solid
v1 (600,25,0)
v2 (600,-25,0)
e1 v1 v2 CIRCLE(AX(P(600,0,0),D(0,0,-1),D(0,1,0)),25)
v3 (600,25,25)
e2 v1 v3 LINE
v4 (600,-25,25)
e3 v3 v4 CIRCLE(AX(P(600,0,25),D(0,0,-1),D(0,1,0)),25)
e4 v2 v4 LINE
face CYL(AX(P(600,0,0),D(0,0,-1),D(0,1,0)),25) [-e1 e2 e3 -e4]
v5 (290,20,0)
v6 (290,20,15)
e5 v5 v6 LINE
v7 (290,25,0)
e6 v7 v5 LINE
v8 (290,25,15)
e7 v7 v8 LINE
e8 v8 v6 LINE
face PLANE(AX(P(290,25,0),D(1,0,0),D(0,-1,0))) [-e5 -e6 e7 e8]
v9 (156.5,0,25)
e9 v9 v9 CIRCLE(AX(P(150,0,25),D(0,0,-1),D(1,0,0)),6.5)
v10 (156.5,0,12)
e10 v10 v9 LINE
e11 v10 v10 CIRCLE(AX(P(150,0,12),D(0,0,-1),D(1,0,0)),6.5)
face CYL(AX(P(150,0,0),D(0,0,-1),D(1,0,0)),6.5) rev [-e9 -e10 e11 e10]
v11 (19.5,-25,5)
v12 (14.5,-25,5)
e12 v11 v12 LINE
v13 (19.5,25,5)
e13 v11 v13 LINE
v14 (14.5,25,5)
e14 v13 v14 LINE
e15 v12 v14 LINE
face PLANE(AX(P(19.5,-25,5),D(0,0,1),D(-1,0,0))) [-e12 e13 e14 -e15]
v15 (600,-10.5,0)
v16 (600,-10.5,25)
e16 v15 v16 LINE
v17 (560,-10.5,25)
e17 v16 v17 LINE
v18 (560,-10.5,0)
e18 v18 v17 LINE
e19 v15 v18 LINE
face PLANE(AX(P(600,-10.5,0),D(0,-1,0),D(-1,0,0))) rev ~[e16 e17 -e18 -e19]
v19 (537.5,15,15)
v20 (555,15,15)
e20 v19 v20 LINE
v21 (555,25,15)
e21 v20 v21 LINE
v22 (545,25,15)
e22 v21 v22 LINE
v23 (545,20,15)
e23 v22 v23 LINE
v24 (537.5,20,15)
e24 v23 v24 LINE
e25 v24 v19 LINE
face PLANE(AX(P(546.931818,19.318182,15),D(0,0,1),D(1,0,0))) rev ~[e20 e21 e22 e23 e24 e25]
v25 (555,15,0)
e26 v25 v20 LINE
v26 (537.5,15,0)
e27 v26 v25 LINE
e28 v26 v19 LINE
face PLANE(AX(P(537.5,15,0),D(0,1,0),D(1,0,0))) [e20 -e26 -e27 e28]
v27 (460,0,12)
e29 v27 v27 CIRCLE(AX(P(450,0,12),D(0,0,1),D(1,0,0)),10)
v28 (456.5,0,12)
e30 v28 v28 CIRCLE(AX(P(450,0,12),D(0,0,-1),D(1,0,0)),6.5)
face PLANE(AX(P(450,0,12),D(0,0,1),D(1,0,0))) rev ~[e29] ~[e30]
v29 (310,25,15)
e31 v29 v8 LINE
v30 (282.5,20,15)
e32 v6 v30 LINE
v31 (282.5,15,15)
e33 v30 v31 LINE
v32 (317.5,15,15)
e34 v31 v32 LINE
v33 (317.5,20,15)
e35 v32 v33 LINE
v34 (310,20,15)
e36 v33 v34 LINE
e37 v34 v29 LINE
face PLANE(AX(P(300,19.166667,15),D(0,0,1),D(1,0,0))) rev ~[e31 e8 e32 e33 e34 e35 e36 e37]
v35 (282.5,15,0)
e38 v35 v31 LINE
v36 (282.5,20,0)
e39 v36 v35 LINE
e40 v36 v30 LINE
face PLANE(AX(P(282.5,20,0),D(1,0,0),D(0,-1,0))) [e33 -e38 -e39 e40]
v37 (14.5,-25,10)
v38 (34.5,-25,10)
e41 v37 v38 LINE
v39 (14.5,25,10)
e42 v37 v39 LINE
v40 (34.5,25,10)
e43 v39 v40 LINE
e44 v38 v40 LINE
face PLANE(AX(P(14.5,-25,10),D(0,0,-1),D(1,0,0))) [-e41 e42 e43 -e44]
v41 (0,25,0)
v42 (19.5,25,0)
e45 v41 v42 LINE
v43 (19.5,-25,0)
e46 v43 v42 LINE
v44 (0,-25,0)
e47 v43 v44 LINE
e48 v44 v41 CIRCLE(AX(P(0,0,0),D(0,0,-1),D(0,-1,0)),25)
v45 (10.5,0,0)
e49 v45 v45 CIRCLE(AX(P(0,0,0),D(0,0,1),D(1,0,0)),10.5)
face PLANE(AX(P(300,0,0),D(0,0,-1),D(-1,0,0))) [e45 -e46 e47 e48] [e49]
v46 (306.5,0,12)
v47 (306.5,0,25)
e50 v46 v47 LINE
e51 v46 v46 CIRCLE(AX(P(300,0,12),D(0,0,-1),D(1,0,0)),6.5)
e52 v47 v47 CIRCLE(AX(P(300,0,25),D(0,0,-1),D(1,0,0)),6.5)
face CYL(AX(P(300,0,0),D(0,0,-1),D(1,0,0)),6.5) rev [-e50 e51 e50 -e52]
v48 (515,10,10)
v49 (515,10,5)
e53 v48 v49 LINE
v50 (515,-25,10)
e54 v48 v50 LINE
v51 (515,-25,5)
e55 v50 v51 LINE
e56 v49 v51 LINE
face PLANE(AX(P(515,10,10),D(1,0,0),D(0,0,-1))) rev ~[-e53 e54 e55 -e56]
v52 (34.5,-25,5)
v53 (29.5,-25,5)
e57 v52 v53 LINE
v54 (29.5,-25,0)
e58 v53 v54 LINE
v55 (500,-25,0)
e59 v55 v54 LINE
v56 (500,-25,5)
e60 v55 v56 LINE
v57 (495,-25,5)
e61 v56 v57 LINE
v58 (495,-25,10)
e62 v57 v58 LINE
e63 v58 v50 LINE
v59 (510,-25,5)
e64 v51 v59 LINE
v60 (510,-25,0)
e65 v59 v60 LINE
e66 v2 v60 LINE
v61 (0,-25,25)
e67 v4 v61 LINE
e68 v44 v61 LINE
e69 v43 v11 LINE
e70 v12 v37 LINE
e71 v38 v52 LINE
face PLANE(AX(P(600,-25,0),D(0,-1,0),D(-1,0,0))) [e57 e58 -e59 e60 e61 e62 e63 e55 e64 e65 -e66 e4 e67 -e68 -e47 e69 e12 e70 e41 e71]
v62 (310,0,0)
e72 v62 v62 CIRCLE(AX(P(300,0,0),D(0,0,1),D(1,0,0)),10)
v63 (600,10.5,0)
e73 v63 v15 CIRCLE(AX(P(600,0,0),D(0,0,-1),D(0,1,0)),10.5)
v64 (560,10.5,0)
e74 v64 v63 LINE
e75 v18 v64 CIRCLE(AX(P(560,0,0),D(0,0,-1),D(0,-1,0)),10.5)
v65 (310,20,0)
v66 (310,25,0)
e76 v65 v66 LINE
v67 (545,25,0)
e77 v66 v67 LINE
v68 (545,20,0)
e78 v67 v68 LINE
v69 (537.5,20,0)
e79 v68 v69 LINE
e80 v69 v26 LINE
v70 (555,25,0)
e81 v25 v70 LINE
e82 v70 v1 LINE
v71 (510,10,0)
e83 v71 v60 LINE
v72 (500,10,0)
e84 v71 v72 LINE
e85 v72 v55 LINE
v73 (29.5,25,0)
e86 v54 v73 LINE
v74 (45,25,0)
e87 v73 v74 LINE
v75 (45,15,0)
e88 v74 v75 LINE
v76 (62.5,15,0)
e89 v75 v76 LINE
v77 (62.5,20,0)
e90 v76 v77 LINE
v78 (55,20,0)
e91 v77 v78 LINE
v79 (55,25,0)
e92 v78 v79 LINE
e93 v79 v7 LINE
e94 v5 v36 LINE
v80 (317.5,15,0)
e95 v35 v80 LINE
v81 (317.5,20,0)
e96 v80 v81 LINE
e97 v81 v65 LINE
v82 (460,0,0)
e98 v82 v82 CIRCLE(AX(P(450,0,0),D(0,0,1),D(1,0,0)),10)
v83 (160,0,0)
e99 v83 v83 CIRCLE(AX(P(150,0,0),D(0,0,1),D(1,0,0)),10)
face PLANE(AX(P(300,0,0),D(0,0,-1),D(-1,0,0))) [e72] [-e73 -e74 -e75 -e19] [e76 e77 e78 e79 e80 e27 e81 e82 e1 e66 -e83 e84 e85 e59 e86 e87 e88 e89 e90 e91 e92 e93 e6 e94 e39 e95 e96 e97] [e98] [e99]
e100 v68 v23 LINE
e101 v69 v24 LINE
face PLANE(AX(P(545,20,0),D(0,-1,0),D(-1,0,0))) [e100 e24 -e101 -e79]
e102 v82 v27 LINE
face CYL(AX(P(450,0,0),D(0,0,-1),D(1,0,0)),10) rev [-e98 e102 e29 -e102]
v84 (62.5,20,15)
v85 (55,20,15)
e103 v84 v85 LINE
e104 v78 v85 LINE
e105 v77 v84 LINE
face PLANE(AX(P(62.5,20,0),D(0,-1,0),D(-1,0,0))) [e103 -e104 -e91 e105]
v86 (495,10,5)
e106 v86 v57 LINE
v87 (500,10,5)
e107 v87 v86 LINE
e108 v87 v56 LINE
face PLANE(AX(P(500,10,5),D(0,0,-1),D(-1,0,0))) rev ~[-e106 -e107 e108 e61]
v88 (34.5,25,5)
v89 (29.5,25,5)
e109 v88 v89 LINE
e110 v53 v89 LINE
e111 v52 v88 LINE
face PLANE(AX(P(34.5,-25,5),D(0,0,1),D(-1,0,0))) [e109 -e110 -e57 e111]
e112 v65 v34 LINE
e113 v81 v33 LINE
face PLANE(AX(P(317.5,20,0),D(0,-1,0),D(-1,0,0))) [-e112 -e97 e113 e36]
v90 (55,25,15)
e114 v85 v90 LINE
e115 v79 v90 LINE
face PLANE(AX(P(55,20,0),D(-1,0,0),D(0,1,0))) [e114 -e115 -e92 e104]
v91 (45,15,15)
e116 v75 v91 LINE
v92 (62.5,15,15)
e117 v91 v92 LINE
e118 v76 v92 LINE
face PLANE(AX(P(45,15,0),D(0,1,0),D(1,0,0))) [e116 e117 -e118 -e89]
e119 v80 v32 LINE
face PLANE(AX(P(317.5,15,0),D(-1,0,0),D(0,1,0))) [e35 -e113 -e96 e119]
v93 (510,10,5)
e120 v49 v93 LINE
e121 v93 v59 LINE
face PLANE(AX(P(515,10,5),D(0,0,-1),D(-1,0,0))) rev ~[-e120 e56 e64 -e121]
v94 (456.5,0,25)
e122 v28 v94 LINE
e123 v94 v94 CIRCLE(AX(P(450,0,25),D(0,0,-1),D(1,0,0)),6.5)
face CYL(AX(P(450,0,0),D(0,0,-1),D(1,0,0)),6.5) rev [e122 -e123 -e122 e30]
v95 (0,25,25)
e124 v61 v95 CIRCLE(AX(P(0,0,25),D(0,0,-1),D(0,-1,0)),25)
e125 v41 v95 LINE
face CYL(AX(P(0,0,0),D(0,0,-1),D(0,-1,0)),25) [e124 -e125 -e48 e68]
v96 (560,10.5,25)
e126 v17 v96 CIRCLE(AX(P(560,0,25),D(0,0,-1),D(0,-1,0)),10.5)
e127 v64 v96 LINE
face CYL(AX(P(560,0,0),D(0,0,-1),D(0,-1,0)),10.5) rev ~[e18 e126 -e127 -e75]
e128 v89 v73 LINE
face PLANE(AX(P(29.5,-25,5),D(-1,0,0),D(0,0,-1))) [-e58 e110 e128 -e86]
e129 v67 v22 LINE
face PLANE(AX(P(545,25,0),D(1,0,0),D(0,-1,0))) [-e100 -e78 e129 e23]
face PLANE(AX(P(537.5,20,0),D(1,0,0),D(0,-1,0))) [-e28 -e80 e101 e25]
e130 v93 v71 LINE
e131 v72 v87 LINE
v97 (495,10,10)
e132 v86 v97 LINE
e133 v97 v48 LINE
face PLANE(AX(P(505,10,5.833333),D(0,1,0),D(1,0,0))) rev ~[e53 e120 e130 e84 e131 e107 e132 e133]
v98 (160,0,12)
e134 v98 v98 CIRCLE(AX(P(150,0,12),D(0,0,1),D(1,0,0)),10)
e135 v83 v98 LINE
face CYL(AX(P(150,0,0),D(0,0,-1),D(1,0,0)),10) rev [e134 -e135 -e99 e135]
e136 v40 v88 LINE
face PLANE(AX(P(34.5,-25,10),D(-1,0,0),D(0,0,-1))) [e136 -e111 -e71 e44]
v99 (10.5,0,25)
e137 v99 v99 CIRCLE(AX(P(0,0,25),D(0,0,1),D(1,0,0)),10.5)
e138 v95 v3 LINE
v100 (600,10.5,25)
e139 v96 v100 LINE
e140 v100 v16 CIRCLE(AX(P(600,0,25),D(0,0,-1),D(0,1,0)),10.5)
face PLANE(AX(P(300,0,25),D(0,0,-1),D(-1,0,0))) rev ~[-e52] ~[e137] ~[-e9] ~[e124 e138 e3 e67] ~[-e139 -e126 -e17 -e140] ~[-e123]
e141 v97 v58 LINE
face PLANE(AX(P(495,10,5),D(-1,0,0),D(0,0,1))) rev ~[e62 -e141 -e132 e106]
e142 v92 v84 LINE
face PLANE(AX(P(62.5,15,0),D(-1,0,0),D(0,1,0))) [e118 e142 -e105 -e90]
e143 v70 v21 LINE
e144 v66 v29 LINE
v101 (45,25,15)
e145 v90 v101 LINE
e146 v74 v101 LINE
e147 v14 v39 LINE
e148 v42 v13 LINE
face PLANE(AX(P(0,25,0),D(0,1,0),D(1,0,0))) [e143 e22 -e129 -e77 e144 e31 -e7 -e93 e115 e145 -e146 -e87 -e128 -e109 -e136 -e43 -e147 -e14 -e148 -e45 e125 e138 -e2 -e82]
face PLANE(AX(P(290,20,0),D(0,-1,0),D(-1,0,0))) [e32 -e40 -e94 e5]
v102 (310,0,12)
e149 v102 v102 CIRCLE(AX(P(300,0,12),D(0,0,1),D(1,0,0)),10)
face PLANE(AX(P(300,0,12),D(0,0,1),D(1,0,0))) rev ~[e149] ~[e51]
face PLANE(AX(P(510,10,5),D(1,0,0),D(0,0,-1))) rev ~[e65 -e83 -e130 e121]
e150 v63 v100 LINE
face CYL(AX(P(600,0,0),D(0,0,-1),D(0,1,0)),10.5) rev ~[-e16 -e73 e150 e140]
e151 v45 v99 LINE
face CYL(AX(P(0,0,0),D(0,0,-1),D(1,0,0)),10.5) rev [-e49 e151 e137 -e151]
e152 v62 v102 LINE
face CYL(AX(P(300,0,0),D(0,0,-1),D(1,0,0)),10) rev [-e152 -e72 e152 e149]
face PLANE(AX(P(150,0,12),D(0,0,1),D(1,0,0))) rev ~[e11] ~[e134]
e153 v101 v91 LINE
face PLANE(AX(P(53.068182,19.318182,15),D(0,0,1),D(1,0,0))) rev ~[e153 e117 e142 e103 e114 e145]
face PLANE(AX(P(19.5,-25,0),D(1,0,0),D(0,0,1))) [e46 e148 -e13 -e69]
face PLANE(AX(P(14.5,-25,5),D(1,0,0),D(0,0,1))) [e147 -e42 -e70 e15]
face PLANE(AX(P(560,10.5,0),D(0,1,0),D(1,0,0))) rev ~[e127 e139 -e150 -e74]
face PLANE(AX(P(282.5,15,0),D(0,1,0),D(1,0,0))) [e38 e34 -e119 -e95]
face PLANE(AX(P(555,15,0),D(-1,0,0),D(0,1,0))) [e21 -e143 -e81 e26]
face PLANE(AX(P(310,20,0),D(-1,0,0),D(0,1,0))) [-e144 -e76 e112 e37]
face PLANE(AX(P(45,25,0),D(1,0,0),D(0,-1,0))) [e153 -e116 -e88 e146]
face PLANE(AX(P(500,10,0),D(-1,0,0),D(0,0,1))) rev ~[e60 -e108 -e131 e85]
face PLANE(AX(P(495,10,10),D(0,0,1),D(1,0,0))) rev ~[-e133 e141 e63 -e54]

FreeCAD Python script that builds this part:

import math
import FreeCAD as App
import Part
import Sketcher
from FreeCAD import Vector


def add_polygon(sketch, points):
    """Adds a closed chain of lines whose ends are joined by coincident constraints."""
    first, n = sketch.GeometryCount, len(points)
    for a, b in zip(points, points[1:] + points[:1]):
        sketch.addGeometry(Part.LineSegment(App.Vector(*a, 0), App.Vector(*b, 0)), False)
    for i in range(n):
        sketch.addConstraint(Sketcher.Constraint("Coincident", first + i, 2, first + (i + 1) % n, 1))

doc = App.newDocument("Part")
body = doc.addObject("PartDesign::Body", "Body")

# Sketch on XY plane
sketch1 = doc.addObject("Sketcher::SketchObject", "Sketch")
body.addObject(sketch1)
sketch1.AttachmentSupport = (doc.XY_Plane, [""])
sketch1.MapMode = "FlatFace"
sketch1.addGeometry(Part.LineSegment(Vector(0, -25, 0), Vector(600, -25, 0)), False)
sketch1.addGeometry(Part.ArcOfCircle(Part.Circle(Vector(600, 0, 0), Vector(0, 0, 1), 25), math.radians(-90), math.radians(90)), False)
sketch1.addGeometry(Part.LineSegment(Vector(600, 25, 0), Vector(0, 25, 0)), False)
sketch1.addGeometry(Part.ArcOfCircle(Part.Circle(Vector(0, 0, 0), Vector(0, 0, 1), 25), math.radians(90), math.radians(270)), False)
sketch1.addGeometry(Part.LineSegment(Vector(560, 10, 0), Vector(600, 10, 0)), False)
sketch1.addGeometry(Part.ArcOfCircle(Part.Circle(Vector(600, 0, 0), Vector(0, 0, 1), 10), math.radians(-90), math.radians(90)), False)
sketch1.addGeometry(Part.LineSegment(Vector(600, -10, 0), Vector(560, -10, 0)), False)
sketch1.addGeometry(Part.ArcOfCircle(Part.Circle(Vector(560, 0, 0), Vector(0, 0, 1), 10), math.radians(90), math.radians(270)), False)
sketch1.addGeometry(Part.Circle(Vector(0, 0, 0), Vector(0, 0, 1), 10), False)
sketch1.addConstraint(Sketcher.Constraint("Tangent", 0, 2, 1, 1))
sketch1.addConstraint(Sketcher.Constraint("Tangent", 1, 2, 2, 1))
sketch1.addConstraint(Sketcher.Constraint("Tangent", 2, 2, 3, 1))
sketch1.addConstraint(Sketcher.Constraint("Tangent", 3, 2, 0, 1))
sketch1.addConstraint(Sketcher.Constraint("Tangent", 4, 2, 5, 2))
sketch1.addConstraint(Sketcher.Constraint("Tangent", 5, 1, 6, 1))
sketch1.addConstraint(Sketcher.Constraint("Tangent", 6, 2, 7, 2))
sketch1.addConstraint(Sketcher.Constraint("Tangent", 7, 1, 4, 1))
sketch1.addConstraint(Sketcher.Constraint("Horizontal", 0))
sketch1.addConstraint(Sketcher.Constraint("Horizontal", 2))
sketch1.addConstraint(Sketcher.Constraint("Horizontal", 4))
sketch1.addConstraint(Sketcher.Constraint("Horizontal", 6))
sketch1.addConstraint(Sketcher.Constraint("Coincident", 3, 3, -1, 1))
sketch1.addConstraint(Sketcher.Constraint("Coincident", 8, 3, -1, 1))
sketch1.addConstraint(Sketcher.Constraint("Coincident", 5, 3, 1, 3))
sketch1.addConstraint(Sketcher.Constraint("Equal", 7, 8))
sketch1.addConstraint(Sketcher.Constraint("Diameter", 8, 21.0))
sketch1.addConstraint(Sketcher.Constraint("Radius", 1, 25.0))
sketch1.addConstraint(Sketcher.Constraint("DistanceX", 0, 1, 0, 2, 600.0))
sketch1.addConstraint(Sketcher.Constraint("DistanceX", 4, 1, 4, 2, 40.0))
pad1 = doc.addObject("PartDesign::Pad", "Pad")
body.addObject(pad1)
pad1.Profile = sketch1
pad1.Length = 25

# Sketch on XZ plane
sketch2 = doc.addObject("Sketcher::SketchObject", "Sketch001")
body.addObject(sketch2)
sketch2.AttachmentSupport = (doc.XZ_Plane, [""])
sketch2.MapMode = "FlatFace"
sketch2.AttachmentOffset = App.Placement(Vector(0, 0, -10), App.Rotation())
add_polygon(sketch2, [(510, 0), (500, 0), (500, 5), (495, 5), (495, 10), (515, 10), (515, 5), (510, 5)])  # lines 0-7
sketch2.addConstraint(Sketcher.Constraint("Horizontal", 0))
sketch2.addConstraint(Sketcher.Constraint("Vertical", 1))
sketch2.addConstraint(Sketcher.Constraint("Horizontal", 2))
sketch2.addConstraint(Sketcher.Constraint("Vertical", 3))
sketch2.addConstraint(Sketcher.Constraint("Horizontal", 4))
sketch2.addConstraint(Sketcher.Constraint("Vertical", 5))
sketch2.addConstraint(Sketcher.Constraint("Horizontal", 6))
sketch2.addConstraint(Sketcher.Constraint("Vertical", 7))
sketch2.addConstraint(Sketcher.Constraint("PointOnObject", 0, 2, -1))
sketch2.addConstraint(Sketcher.Constraint("Horizontal", 2, 2, 5, 2))
sketch2.addConstraint(Sketcher.Constraint("Equal", 2, 6))
sketch2.addConstraint(Sketcher.Constraint("Equal", 6, 1))
sketch2.addConstraint(Sketcher.Constraint("Equal", 1, 3))
sketch2.addConstraint(Sketcher.Constraint("DistanceX", 0, 2, 0, 1, 10.0))
sketch2.addConstraint(Sketcher.Constraint("DistanceX", 2, 2, 2, 1, 5.0))
sketch2.addConstraint(Sketcher.Constraint("DistanceX", -1, 1, 0, 2, 500.0))
pocket1 = doc.addObject("PartDesign::Pocket", "Pocket")
body.addObject(pocket1)
pocket1.Profile = sketch2
pocket1.Length = 35
pocket1.Reversed = True

# Sketch on XZ plane
sketch3 = doc.addObject("Sketcher::SketchObject", "Sketch002")
body.addObject(sketch3)
sketch3.AttachmentSupport = (doc.XZ_Plane, [""])
sketch3.MapMode = "FlatFace"
sketch3.AttachmentOffset = App.Placement(Vector(0, 0, 25), App.Rotation())
add_polygon(sketch3, [(20, 5), (20, 0), (30, 0), (30, 5), (34, 5), (34, 10), (14, 10), (14, 5)])  # lines 0-7
sketch3.addConstraint(Sketcher.Constraint("Vertical", 0))
sketch3.addConstraint(Sketcher.Constraint("Horizontal", 1))
sketch3.addConstraint(Sketcher.Constraint("Vertical", 2))
sketch3.addConstraint(Sketcher.Constraint("Horizontal", 3))
sketch3.addConstraint(Sketcher.Constraint("Vertical", 4))
sketch3.addConstraint(Sketcher.Constraint("Horizontal", 5))
sketch3.addConstraint(Sketcher.Constraint("Vertical", 6))
sketch3.addConstraint(Sketcher.Constraint("Horizontal", 7))
sketch3.addConstraint(Sketcher.Constraint("PointOnObject", 0, 2, -1))
sketch3.addConstraint(Sketcher.Constraint("Horizontal", 3, 2, 6, 2))
sketch3.addConstraint(Sketcher.Constraint("Equal", 3, 7))
sketch3.addConstraint(Sketcher.Constraint("Equal", 7, 0))
sketch3.addConstraint(Sketcher.Constraint("Equal", 2, 4))
sketch3.addConstraint(Sketcher.Constraint("DistanceX", 1, 1, 1, 2, 10.0))
sketch3.addConstraint(Sketcher.Constraint("DistanceX", 3, 1, 3, 2, 5.0))
sketch3.addConstraint(Sketcher.Constraint("DistanceX", -1, 1, 0, 2, 19.5))
pocket2 = doc.addObject("PartDesign::Pocket", "Pocket001")
body.addObject(pocket2)
pocket2.Profile = sketch3
pocket2.Length = 50

# Sketch on XY plane
sketch4 = doc.addObject("Sketcher::SketchObject", "Sketch003")
body.addObject(sketch4)
sketch4.AttachmentSupport = (doc.XY_Plane, [""])
sketch4.MapMode = "FlatFace"
add_polygon(sketch4, [(55, 25), (45, 25), (45, 15), (62, 15), (62, 20), (55, 20)])  # lines 0-5
add_polygon(sketch4, [(310, 20), (310, 25), (290, 25), (290, 20), (282, 20), (282, 15), (318, 15), (318, 20)])  # lines 6-13
add_polygon(sketch4, [(555, 15), (555, 25), (545, 25), (545, 20), (538, 20), (538, 15)])  # lines 14-19
sketch4.addConstraint(Sketcher.Constraint("Horizontal", 0))
sketch4.addConstraint(Sketcher.Constraint("Vertical", 1))
sketch4.addConstraint(Sketcher.Constraint("Horizontal", 2))
sketch4.addConstraint(Sketcher.Constraint("Vertical", 3))
sketch4.addConstraint(Sketcher.Constraint("Horizontal", 4))
sketch4.addConstraint(Sketcher.Constraint("Vertical", 5))
sketch4.addConstraint(Sketcher.Constraint("Vertical", 6))
sketch4.addConstraint(Sketcher.Constraint("Horizontal", 7))
sketch4.addConstraint(Sketcher.Constraint("Vertical", 8))
sketch4.addConstraint(Sketcher.Constraint("Horizontal", 9))
sketch4.addConstraint(Sketcher.Constraint("Vertical", 10))
sketch4.addConstraint(Sketcher.Constraint("Horizontal", 11))
sketch4.addConstraint(Sketcher.Constraint("Vertical", 12))
sketch4.addConstraint(Sketcher.Constraint("Horizontal", 13))
sketch4.addConstraint(Sketcher.Constraint("Vertical", 14))
sketch4.addConstraint(Sketcher.Constraint("Horizontal", 15))
sketch4.addConstraint(Sketcher.Constraint("Vertical", 16))
sketch4.addConstraint(Sketcher.Constraint("Horizontal", 17))
sketch4.addConstraint(Sketcher.Constraint("Vertical", 18))
sketch4.addConstraint(Sketcher.Constraint("Horizontal", 19))
sketch4.addConstraint(Sketcher.Constraint("Horizontal", 5, 2, 6, 2))
sketch4.addConstraint(Sketcher.Constraint("Horizontal", 4, 2, 8, 2))
sketch4.addConstraint(Sketcher.Constraint("Horizontal", 2, 2, 10, 2))
sketch4.addConstraint(Sketcher.Constraint("Horizontal", 9, 2, 12, 2))
sketch4.addConstraint(Sketcher.Constraint("Horizontal", 7, 2, 14, 2))
sketch4.addConstraint(Sketcher.Constraint("Horizontal", 13, 2, 16, 2))
sketch4.addConstraint(Sketcher.Constraint("Horizontal", 11, 2, 18, 2))
sketch4.addConstraint(Sketcher.Constraint("Equal", 4, 9))
sketch4.addConstraint(Sketcher.Constraint("Equal", 9, 13))
sketch4.addConstraint(Sketcher.Constraint("Equal", 0, 15))
sketch4.addConstraint(Sketcher.Constraint("Equal", 13, 17))
sketch4.addConstraint(Sketcher.Constraint("Equal", 15, 1))
sketch4.addConstraint(Sketcher.Constraint("Equal", 3, 5))
sketch4.addConstraint(Sketcher.Constraint("DistanceX", 0, 2, 0, 1, 10.0))
sketch4.addConstraint(Sketcher.Constraint("DistanceX", 7, 2, 7, 1, 20.0))
sketch4.addConstraint(Sketcher.Constraint("DistanceX", 11, 1, 11, 2, 35.0))
sketch4.addConstraint(Sketcher.Constraint("DistanceX", -1, 1, 0, 2, 45.0))
sketch4.addConstraint(Sketcher.Constraint("DistanceY", -1, 1, 0, 2, 25.0))
sketch4.addConstraint(Sketcher.Constraint("DistanceX", -1, 1, 6, 2, 310.0))
sketch4.addConstraint(Sketcher.Constraint("DistanceX", -1, 1, 14, 2, 555.0))
pocket3 = doc.addObject("PartDesign::Pocket", "Pocket002")
body.addObject(pocket3)
pocket3.Profile = sketch4
pocket3.Length = 15
pocket3.Reversed = True

# Sketch on XY plane
sketch5 = doc.addObject("Sketcher::SketchObject", "Sketch004")
body.addObject(sketch5)
sketch5.AttachmentSupport = (doc.XY_Plane, [""])
sketch5.MapMode = "FlatFace"
sketch5.addGeometry(Part.Circle(Vector(300, 0, 0), Vector(0, 0, 1), 7), False)
sketch5.addGeometry(Part.Circle(Vector(450, 0, 0), Vector(0, 0, 1), 7), False)
sketch5.addGeometry(Part.Circle(Vector(150, 0, 0), Vector(0, 0, 1), 7), False)
sketch5.addConstraint(Sketcher.Constraint("Equal", 0, 1))
sketch5.addConstraint(Sketcher.Constraint("Equal", 1, 2))
sketch5.addConstraint(Sketcher.Constraint("PointOnObject", 0, 3, -1))
sketch5.addConstraint(Sketcher.Constraint("PointOnObject", 1, 3, -1))
sketch5.addConstraint(Sketcher.Constraint("PointOnObject", 2, 3, -1))
sketch5.addConstraint(Sketcher.Constraint("Diameter", 0, 13.0))
sketch5.addConstraint(Sketcher.Constraint("DistanceX", -1, 1, 0, 3, 300.0))
sketch5.addConstraint(Sketcher.Constraint("DistanceX", -1, 1, 1, 3, 450.0))
sketch5.addConstraint(Sketcher.Constraint("DistanceX", -1, 1, 2, 3, 150.0))
pocket4 = doc.addObject("PartDesign::Pocket", "Pocket003")
body.addObject(pocket4)
pocket4.Profile = sketch5
pocket4.Type = "ThroughAll"
pocket4.Midplane = True

# Sketch on XY plane
sketch6 = doc.addObject("Sketcher::SketchObject", "Sketch005")
body.addObject(sketch6)
sketch6.AttachmentSupport = (doc.XY_Plane, [""])
sketch6.MapMode = "FlatFace"
sketch6.addGeometry(Part.Circle(Vector(300, 0, 0), Vector(0, 0, 1), 10), False)
sketch6.addGeometry(Part.Circle(Vector(450, 0, 0), Vector(0, 0, 1), 10), False)
sketch6.addGeometry(Part.Circle(Vector(150, 0, 0), Vector(0, 0, 1), 10), False)
sketch6.addConstraint(Sketcher.Constraint("Equal", 0, 1))
sketch6.addConstraint(Sketcher.Constraint("Equal", 1, 2))
sketch6.addConstraint(Sketcher.Constraint("PointOnObject", 0, 3, -1))
sketch6.addConstraint(Sketcher.Constraint("PointOnObject", 1, 3, -1))
sketch6.addConstraint(Sketcher.Constraint("PointOnObject", 2, 3, -1))
sketch6.addConstraint(Sketcher.Constraint("Diameter", 0, 20.0))
sketch6.addConstraint(Sketcher.Constraint("DistanceX", -1, 1, 0, 3, 300.0))
sketch6.addConstraint(Sketcher.Constraint("DistanceX", -1, 1, 1, 3, 450.0))
sketch6.addConstraint(Sketcher.Constraint("DistanceX", -1, 1, 2, 3, 150.0))
pocket5 = doc.addObject("PartDesign::Pocket", "Pocket004")
body.addObject(pocket5)
pocket5.Profile = sketch6
pocket5.Length = 12
pocket5.Reversed = True

doc.recompute()
